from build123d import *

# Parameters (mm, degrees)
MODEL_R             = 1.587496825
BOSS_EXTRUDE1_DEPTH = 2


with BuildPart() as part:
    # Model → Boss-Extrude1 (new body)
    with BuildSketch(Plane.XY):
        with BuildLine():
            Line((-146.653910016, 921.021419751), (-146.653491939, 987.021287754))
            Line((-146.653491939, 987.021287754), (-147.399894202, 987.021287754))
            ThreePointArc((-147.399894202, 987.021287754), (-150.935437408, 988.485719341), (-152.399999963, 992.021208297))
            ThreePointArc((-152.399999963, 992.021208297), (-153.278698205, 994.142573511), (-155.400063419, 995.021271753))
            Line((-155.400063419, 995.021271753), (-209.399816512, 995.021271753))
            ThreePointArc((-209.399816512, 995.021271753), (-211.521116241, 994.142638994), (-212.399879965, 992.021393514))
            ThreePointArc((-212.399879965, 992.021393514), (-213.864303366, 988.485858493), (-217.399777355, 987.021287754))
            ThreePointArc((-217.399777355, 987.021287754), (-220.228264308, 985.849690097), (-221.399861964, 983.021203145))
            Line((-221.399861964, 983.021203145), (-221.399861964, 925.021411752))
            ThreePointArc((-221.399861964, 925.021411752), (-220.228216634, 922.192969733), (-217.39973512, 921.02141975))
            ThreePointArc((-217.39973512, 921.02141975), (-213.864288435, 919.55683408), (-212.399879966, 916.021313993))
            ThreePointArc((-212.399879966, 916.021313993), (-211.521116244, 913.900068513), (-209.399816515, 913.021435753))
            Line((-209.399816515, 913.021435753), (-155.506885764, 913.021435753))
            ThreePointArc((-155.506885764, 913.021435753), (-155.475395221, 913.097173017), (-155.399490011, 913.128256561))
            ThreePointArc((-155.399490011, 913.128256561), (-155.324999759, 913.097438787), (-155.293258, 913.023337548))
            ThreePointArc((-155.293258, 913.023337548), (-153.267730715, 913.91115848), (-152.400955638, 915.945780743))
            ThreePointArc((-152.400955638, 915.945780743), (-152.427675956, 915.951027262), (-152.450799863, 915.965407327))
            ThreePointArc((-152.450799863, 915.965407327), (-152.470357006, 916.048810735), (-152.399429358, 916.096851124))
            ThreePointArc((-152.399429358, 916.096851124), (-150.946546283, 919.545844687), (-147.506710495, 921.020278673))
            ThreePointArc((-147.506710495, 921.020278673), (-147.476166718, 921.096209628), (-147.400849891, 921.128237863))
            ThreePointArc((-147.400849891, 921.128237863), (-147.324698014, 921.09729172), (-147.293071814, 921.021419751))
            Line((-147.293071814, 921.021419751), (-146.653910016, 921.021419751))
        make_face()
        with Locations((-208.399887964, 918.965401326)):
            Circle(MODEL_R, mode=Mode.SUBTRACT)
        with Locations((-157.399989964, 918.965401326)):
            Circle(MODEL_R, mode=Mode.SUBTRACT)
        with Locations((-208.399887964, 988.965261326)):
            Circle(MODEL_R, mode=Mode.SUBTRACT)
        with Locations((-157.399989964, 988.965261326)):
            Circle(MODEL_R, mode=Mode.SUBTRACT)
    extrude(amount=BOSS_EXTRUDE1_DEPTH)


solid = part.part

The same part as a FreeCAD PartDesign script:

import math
import FreeCAD as App
import Part
import Sketcher
Q = App.Units.Quantity

doc = App.newDocument("Part")
body = doc.addObject("PartDesign::Body", "Body")

sketch1 = doc.addObject("Sketcher::SketchObject", "Sketch")
body.addObject(sketch1)
sketch1.AttachmentSupport = (doc.XY_Plane, [""])
sketch1.MapMode = "FlatFace"
sketch1.addGeometry([
    Part.LineSegment(App.Vector(-146.65, 921.02, 0), App.Vector(-146.65, 987.02, 0)),
    Part.LineSegment(App.Vector(-146.65, 987.02, 0), App.Vector(-147.4, 987.02, 0)),
    Part.ArcOfCircle(Part.Circle(App.Vector(-147.4, 992.02, 0), App.Vector(0, 0, 1), 5), math.radians(-180), math.radians(-90)),
    Part.ArcOfCircle(Part.Circle(App.Vector(-155.4, 992.02, 0), App.Vector(0, 0, 1), 3), math.radians(0), math.radians(90)),
    Part.LineSegment(App.Vector(-155.4, 995.02, 0), App.Vector(-209.4, 995.02, 0)),
    Part.ArcOfCircle(Part.Circle(App.Vector(-209.4, 992.02, 0), App.Vector(0, 0, 1), 3), math.radians(90), math.radians(180)),
    Part.ArcOfCircle(Part.Circle(App.Vector(-217.4, 992.02, 0), App.Vector(0, 0, 1), 5), math.radians(-90), math.radians(0)),
    Part.ArcOfCircle(Part.Circle(App.Vector(-217.4, 983.02, 0), App.Vector(0, 0, 1), 4), math.radians(90), math.radians(180)),
    Part.LineSegment(App.Vector(-221.4, 983.02, 0), App.Vector(-221.4, 925.02, 0)),
    Part.ArcOfCircle(Part.Circle(App.Vector(-217.4, 925.02, 0), App.Vector(0, 0, 1), 4), math.radians(-180), math.radians(-90)),
    Part.ArcOfCircle(Part.Circle(App.Vector(-217.4, 916.02, 0), App.Vector(0, 0, 1), 5), math.radians(0), math.radians(90)),
    Part.ArcOfCircle(Part.Circle(App.Vector(-209.4, 916.02, 0), App.Vector(0, 0, 1), 3), math.radians(-180), math.radians(-90)),
    Part.LineSegment(App.Vector(-209.4, 913.02, 0), App.Vector(-155.51, 913.02, 0)),
    Part.ArcOfCircle(Part.Circle(App.Vector(-155.4, 913.02, 0), App.Vector(0, 0, 1), 0.11), math.radians(90), math.radians(180)),
    Part.ArcOfCircle(Part.Circle(App.Vector(-155.4, 913.02, 0), App.Vector(0, 0, 1), 0.11), math.radians(1), math.radians(90)),
    Part.ArcOfCircle(Part.Circle(App.Vector(-155.4, 916.02, 0), App.Vector(0, 0, 1), 3), math.radians(-88), math.radians(-1)),
    Part.ArcOfCircle(Part.Circle(App.Vector(-152.4, 916.02, 0), App.Vector(0, 0, 1), 0.08), math.radians(-132), math.radians(-91)),
    Part.ArcOfCircle(Part.Circle(App.Vector(-152.4, 916.02, 0), App.Vector(0, 0, 1), 0.08), math.radians(90), math.radians(228)),
    Part.ArcOfCircle(Part.Circle(App.Vector(-147.4, 916.02, 0), App.Vector(0, 0, 1), 5), math.radians(91), math.radians(179)),
    Part.ArcOfCircle(Part.Circle(App.Vector(-147.4, 921.02, 0), App.Vector(0, 0, 1), 0.11), math.radians(91), math.radians(181)),
    Part.ArcOfCircle(Part.Circle(App.Vector(-147.4, 921.02, 0), App.Vector(0, 0, 1), 0.11), math.radians(0), math.radians(91)),
    Part.LineSegment(App.Vector(-147.29, 921.02, 0), App.Vector(-146.65, 921.02, 0)),
    Part.Circle(App.Vector(-208.4, 918.97, 0), App.Vector(0, 0, 1), 1.59),
    Part.Circle(App.Vector(-157.4, 918.97, 0), App.Vector(0, 0, 1), 1.59),
    Part.Circle(App.Vector(-208.4, 988.97, 0), App.Vector(0, 0, 1), 1.59),
    Part.Circle(App.Vector(-157.4, 988.97, 0), App.Vector(0, 0, 1), 1.59),
], False)
sketch1.addConstraint([
    Sketcher.Constraint("Coincident", 0, 2, 1, 1),
    Sketcher.Constraint("Tangent", 1, 2, 2, 2),
    Sketcher.Constraint("Coincident", 2, 1, 3, 1),
    Sketcher.Constraint("Tangent", 3, 2, 4, 1),
    Sketcher.Constraint("Tangent", 4, 2, 5, 1),
    Sketcher.Constraint("Coincident", 5, 2, 6, 2),
    Sketcher.Constraint("Coincident", 6, 1, 7, 1),
    Sketcher.Constraint("Tangent", 7, 2, 8, 1),
    Sketcher.Constraint("Coincident", 8, 2, 9, 1),
    Sketcher.Constraint("Coincident", 9, 2, 10, 2),
    Sketcher.Constraint("Coincident", 10, 1, 11, 1),
    Sketcher.Constraint("Tangent", 11, 2, 12, 1),
    Sketcher.Constraint("Coincident", 12, 2, 13, 2),
    Sketcher.Constraint("Tangent", 13, 1, 14, 2),
    Sketcher.Constraint("Coincident", 14, 1, 15, 1),
    Sketcher.Constraint("Coincident", 15, 2, 16, 2),
    Sketcher.Constraint("Tangent", 16, 1, 17, 2),
    Sketcher.Constraint("Coincident", 17, 1, 18, 2),
    Sketcher.Constraint("Coincident", 18, 1, 19, 2),
    Sketcher.Constraint("Tangent", 19, 1, 20, 2),
    Sketcher.Constraint("Coincident", 20, 1, 21, 1),
    Sketcher.Constraint("Coincident", 21, 2, 0, 1),
    Sketcher.Constraint("Horizontal", 1),
    Sketcher.Constraint("Horizontal", 4),
    Sketcher.Constraint("Vertical", 8),
    Sketcher.Constraint("Horizontal", 12),
    Sketcher.Constraint("Horizontal", 21),
    Sketcher.Constraint("Equal", 3, 5),
    Sketcher.Constraint("Equal", 2, 6),
    Sketcher.Constraint("Equal", 7, 9),
    Sketcher.Constraint("Equal", 6, 10),
    Sketcher.Constraint("Equal", 5, 11),
    Sketcher.Constraint("Equal", 13, 14),
    Sketcher.Constraint("Equal", 11, 15),
    Sketcher.Constraint("Equal", 16, 17),
    Sketcher.Constraint("Equal", 10, 18),
    Sketcher.Constraint("Equal", 14, 19),
    Sketcher.Constraint("Equal", 19, 20),
    Sketcher.Constraint("Equal", 22, 23),
    Sketcher.Constraint("Equal", 23, 24),
    Sketcher.Constraint("Equal", 24, 25),
    Sketcher.Constraint("Horizontal", 2, 3, 6, 3),
    Sketcher.Constraint("Horizontal", 11, 3, 15, 3),
    Sketcher.Constraint("Horizontal", 10, 3, 16, 3),
    Sketcher.Constraint("Horizontal", 17, 3, 18, 3),
    Sketcher.Constraint("Horizontal", 22, 3, 23, 3),
    Sketcher.Constraint("Horizontal", 24, 3, 25, 3),
    Sketcher.Constraint("Horizontal", 5, 3, 2, 1),
    Sketcher.Constraint("Horizontal", 6, 3, 5, 2),
    Sketcher.Constraint("Horizontal", 20, 3, 9, 2),
    Sketcher.Constraint("Horizontal", 18, 3, 10, 1),
    Sketcher.Constraint("Horizontal", 14, 3, 11, 2),
    Sketcher.Constraint("Horizontal", 9, 2, 20, 1),
    Sketcher.Constraint("Vertical", 6, 3, 10, 3),
    Sketcher.Constraint("Vertical", 3, 3, 13, 3),
    Sketcher.Constraint("Vertical", 14, 3, 15, 3),
    Sketcher.Constraint("Vertical", 2, 3, 18, 3),
    Sketcher.Constraint("Vertical", 18, 3, 19, 3),
    Sketcher.Constraint("Vertical", 22, 3, 24, 3),
    Sketcher.Constraint("Vertical", 23, 3, 25, 3),
    Sketcher.Constraint("Vertical", 17, 3, 2, 1),
    Sketcher.Constraint("Vertical", 9, 3, 6, 1),
    Sketcher.Constraint("DistanceX", 16, 3, -1, 1, Q("152.4 mm")),
    Sketcher.Constraint("Radius", 16, Q("0.075539 mm")),
    Sketcher.Constraint("Diameter", 22, Q("3.174994 mm")),
    Sketcher.Constraint("Radius", 2, Q("5.000106 mm")),
    Sketcher.Constraint("Radius", 3, Q("3.000063 mm")),
    Sketcher.Constraint("Radius", 7, Q("4.000085 mm")),
    Sketcher.Constraint("Radius", 13, Q("0.106822 mm")),
    Sketcher.Constraint("DistanceX", 12, 1, 12, 2, Q("53.892931 mm")),
    Sketcher.Constraint("DistanceX", 21, 1, 21, 2, Q("0.639162 mm")),
    Sketcher.Constraint("DistanceY", 8, 2, 8, 1, Q("57.999791 mm")),
    Sketcher.Constraint("DistanceY", -1, 1, 11, 3, Q("916.021499 mm")),
    Sketcher.Constraint("DistanceY", -1, 1, 22, 3, Q("918.965401 mm")),
    Sketcher.Constraint("DistanceX", 16, 1, -1, 1, Q("152.4508 mm")),
    Sketcher.Constraint("DistanceY", 9, 3, 7, 3, Q("57.999699 mm")),
    Sketcher.Constraint("DistanceX", 25, 3, 0, 2, Q("10.746498 mm")),
    Sketcher.Constraint("DistanceX", 1, 2, 1, 1, Q("0.746402 mm")),
    Sketcher.Constraint("DistanceY", -1, 1, 3, 3, Q("992.021208 mm")),
    Sketcher.Constraint("DistanceY", -1, 1, 19, 3, Q("921.02142 mm")),
    Sketcher.Constraint("DistanceY", -1, 1, 24, 3, Q("988.965261 mm")),
    Sketcher.Constraint("DistanceX", 7, 2, -1, 1, Q("221.399862 mm")),
    Sketcher.Constraint("DistanceX", 13, 1, -1, 1, Q("155.39949 mm")),
    Sketcher.Constraint("DistanceX", 19, 1, -1, 1, Q("147.40085 mm")),
    Sketcher.Constraint("DistanceX", 11, 3, 22, 3, Q("0.999929 mm")),
    Sketcher.Constraint("DistanceX", 10, 3, 9, 2, Q("0.000251 mm")),
])
pad1 = doc.addObject("PartDesign::Pad", "Pad")
body.addObject(pad1)
pad1.Profile = sketch1
pad1.Length = 2

doc.recompute()
